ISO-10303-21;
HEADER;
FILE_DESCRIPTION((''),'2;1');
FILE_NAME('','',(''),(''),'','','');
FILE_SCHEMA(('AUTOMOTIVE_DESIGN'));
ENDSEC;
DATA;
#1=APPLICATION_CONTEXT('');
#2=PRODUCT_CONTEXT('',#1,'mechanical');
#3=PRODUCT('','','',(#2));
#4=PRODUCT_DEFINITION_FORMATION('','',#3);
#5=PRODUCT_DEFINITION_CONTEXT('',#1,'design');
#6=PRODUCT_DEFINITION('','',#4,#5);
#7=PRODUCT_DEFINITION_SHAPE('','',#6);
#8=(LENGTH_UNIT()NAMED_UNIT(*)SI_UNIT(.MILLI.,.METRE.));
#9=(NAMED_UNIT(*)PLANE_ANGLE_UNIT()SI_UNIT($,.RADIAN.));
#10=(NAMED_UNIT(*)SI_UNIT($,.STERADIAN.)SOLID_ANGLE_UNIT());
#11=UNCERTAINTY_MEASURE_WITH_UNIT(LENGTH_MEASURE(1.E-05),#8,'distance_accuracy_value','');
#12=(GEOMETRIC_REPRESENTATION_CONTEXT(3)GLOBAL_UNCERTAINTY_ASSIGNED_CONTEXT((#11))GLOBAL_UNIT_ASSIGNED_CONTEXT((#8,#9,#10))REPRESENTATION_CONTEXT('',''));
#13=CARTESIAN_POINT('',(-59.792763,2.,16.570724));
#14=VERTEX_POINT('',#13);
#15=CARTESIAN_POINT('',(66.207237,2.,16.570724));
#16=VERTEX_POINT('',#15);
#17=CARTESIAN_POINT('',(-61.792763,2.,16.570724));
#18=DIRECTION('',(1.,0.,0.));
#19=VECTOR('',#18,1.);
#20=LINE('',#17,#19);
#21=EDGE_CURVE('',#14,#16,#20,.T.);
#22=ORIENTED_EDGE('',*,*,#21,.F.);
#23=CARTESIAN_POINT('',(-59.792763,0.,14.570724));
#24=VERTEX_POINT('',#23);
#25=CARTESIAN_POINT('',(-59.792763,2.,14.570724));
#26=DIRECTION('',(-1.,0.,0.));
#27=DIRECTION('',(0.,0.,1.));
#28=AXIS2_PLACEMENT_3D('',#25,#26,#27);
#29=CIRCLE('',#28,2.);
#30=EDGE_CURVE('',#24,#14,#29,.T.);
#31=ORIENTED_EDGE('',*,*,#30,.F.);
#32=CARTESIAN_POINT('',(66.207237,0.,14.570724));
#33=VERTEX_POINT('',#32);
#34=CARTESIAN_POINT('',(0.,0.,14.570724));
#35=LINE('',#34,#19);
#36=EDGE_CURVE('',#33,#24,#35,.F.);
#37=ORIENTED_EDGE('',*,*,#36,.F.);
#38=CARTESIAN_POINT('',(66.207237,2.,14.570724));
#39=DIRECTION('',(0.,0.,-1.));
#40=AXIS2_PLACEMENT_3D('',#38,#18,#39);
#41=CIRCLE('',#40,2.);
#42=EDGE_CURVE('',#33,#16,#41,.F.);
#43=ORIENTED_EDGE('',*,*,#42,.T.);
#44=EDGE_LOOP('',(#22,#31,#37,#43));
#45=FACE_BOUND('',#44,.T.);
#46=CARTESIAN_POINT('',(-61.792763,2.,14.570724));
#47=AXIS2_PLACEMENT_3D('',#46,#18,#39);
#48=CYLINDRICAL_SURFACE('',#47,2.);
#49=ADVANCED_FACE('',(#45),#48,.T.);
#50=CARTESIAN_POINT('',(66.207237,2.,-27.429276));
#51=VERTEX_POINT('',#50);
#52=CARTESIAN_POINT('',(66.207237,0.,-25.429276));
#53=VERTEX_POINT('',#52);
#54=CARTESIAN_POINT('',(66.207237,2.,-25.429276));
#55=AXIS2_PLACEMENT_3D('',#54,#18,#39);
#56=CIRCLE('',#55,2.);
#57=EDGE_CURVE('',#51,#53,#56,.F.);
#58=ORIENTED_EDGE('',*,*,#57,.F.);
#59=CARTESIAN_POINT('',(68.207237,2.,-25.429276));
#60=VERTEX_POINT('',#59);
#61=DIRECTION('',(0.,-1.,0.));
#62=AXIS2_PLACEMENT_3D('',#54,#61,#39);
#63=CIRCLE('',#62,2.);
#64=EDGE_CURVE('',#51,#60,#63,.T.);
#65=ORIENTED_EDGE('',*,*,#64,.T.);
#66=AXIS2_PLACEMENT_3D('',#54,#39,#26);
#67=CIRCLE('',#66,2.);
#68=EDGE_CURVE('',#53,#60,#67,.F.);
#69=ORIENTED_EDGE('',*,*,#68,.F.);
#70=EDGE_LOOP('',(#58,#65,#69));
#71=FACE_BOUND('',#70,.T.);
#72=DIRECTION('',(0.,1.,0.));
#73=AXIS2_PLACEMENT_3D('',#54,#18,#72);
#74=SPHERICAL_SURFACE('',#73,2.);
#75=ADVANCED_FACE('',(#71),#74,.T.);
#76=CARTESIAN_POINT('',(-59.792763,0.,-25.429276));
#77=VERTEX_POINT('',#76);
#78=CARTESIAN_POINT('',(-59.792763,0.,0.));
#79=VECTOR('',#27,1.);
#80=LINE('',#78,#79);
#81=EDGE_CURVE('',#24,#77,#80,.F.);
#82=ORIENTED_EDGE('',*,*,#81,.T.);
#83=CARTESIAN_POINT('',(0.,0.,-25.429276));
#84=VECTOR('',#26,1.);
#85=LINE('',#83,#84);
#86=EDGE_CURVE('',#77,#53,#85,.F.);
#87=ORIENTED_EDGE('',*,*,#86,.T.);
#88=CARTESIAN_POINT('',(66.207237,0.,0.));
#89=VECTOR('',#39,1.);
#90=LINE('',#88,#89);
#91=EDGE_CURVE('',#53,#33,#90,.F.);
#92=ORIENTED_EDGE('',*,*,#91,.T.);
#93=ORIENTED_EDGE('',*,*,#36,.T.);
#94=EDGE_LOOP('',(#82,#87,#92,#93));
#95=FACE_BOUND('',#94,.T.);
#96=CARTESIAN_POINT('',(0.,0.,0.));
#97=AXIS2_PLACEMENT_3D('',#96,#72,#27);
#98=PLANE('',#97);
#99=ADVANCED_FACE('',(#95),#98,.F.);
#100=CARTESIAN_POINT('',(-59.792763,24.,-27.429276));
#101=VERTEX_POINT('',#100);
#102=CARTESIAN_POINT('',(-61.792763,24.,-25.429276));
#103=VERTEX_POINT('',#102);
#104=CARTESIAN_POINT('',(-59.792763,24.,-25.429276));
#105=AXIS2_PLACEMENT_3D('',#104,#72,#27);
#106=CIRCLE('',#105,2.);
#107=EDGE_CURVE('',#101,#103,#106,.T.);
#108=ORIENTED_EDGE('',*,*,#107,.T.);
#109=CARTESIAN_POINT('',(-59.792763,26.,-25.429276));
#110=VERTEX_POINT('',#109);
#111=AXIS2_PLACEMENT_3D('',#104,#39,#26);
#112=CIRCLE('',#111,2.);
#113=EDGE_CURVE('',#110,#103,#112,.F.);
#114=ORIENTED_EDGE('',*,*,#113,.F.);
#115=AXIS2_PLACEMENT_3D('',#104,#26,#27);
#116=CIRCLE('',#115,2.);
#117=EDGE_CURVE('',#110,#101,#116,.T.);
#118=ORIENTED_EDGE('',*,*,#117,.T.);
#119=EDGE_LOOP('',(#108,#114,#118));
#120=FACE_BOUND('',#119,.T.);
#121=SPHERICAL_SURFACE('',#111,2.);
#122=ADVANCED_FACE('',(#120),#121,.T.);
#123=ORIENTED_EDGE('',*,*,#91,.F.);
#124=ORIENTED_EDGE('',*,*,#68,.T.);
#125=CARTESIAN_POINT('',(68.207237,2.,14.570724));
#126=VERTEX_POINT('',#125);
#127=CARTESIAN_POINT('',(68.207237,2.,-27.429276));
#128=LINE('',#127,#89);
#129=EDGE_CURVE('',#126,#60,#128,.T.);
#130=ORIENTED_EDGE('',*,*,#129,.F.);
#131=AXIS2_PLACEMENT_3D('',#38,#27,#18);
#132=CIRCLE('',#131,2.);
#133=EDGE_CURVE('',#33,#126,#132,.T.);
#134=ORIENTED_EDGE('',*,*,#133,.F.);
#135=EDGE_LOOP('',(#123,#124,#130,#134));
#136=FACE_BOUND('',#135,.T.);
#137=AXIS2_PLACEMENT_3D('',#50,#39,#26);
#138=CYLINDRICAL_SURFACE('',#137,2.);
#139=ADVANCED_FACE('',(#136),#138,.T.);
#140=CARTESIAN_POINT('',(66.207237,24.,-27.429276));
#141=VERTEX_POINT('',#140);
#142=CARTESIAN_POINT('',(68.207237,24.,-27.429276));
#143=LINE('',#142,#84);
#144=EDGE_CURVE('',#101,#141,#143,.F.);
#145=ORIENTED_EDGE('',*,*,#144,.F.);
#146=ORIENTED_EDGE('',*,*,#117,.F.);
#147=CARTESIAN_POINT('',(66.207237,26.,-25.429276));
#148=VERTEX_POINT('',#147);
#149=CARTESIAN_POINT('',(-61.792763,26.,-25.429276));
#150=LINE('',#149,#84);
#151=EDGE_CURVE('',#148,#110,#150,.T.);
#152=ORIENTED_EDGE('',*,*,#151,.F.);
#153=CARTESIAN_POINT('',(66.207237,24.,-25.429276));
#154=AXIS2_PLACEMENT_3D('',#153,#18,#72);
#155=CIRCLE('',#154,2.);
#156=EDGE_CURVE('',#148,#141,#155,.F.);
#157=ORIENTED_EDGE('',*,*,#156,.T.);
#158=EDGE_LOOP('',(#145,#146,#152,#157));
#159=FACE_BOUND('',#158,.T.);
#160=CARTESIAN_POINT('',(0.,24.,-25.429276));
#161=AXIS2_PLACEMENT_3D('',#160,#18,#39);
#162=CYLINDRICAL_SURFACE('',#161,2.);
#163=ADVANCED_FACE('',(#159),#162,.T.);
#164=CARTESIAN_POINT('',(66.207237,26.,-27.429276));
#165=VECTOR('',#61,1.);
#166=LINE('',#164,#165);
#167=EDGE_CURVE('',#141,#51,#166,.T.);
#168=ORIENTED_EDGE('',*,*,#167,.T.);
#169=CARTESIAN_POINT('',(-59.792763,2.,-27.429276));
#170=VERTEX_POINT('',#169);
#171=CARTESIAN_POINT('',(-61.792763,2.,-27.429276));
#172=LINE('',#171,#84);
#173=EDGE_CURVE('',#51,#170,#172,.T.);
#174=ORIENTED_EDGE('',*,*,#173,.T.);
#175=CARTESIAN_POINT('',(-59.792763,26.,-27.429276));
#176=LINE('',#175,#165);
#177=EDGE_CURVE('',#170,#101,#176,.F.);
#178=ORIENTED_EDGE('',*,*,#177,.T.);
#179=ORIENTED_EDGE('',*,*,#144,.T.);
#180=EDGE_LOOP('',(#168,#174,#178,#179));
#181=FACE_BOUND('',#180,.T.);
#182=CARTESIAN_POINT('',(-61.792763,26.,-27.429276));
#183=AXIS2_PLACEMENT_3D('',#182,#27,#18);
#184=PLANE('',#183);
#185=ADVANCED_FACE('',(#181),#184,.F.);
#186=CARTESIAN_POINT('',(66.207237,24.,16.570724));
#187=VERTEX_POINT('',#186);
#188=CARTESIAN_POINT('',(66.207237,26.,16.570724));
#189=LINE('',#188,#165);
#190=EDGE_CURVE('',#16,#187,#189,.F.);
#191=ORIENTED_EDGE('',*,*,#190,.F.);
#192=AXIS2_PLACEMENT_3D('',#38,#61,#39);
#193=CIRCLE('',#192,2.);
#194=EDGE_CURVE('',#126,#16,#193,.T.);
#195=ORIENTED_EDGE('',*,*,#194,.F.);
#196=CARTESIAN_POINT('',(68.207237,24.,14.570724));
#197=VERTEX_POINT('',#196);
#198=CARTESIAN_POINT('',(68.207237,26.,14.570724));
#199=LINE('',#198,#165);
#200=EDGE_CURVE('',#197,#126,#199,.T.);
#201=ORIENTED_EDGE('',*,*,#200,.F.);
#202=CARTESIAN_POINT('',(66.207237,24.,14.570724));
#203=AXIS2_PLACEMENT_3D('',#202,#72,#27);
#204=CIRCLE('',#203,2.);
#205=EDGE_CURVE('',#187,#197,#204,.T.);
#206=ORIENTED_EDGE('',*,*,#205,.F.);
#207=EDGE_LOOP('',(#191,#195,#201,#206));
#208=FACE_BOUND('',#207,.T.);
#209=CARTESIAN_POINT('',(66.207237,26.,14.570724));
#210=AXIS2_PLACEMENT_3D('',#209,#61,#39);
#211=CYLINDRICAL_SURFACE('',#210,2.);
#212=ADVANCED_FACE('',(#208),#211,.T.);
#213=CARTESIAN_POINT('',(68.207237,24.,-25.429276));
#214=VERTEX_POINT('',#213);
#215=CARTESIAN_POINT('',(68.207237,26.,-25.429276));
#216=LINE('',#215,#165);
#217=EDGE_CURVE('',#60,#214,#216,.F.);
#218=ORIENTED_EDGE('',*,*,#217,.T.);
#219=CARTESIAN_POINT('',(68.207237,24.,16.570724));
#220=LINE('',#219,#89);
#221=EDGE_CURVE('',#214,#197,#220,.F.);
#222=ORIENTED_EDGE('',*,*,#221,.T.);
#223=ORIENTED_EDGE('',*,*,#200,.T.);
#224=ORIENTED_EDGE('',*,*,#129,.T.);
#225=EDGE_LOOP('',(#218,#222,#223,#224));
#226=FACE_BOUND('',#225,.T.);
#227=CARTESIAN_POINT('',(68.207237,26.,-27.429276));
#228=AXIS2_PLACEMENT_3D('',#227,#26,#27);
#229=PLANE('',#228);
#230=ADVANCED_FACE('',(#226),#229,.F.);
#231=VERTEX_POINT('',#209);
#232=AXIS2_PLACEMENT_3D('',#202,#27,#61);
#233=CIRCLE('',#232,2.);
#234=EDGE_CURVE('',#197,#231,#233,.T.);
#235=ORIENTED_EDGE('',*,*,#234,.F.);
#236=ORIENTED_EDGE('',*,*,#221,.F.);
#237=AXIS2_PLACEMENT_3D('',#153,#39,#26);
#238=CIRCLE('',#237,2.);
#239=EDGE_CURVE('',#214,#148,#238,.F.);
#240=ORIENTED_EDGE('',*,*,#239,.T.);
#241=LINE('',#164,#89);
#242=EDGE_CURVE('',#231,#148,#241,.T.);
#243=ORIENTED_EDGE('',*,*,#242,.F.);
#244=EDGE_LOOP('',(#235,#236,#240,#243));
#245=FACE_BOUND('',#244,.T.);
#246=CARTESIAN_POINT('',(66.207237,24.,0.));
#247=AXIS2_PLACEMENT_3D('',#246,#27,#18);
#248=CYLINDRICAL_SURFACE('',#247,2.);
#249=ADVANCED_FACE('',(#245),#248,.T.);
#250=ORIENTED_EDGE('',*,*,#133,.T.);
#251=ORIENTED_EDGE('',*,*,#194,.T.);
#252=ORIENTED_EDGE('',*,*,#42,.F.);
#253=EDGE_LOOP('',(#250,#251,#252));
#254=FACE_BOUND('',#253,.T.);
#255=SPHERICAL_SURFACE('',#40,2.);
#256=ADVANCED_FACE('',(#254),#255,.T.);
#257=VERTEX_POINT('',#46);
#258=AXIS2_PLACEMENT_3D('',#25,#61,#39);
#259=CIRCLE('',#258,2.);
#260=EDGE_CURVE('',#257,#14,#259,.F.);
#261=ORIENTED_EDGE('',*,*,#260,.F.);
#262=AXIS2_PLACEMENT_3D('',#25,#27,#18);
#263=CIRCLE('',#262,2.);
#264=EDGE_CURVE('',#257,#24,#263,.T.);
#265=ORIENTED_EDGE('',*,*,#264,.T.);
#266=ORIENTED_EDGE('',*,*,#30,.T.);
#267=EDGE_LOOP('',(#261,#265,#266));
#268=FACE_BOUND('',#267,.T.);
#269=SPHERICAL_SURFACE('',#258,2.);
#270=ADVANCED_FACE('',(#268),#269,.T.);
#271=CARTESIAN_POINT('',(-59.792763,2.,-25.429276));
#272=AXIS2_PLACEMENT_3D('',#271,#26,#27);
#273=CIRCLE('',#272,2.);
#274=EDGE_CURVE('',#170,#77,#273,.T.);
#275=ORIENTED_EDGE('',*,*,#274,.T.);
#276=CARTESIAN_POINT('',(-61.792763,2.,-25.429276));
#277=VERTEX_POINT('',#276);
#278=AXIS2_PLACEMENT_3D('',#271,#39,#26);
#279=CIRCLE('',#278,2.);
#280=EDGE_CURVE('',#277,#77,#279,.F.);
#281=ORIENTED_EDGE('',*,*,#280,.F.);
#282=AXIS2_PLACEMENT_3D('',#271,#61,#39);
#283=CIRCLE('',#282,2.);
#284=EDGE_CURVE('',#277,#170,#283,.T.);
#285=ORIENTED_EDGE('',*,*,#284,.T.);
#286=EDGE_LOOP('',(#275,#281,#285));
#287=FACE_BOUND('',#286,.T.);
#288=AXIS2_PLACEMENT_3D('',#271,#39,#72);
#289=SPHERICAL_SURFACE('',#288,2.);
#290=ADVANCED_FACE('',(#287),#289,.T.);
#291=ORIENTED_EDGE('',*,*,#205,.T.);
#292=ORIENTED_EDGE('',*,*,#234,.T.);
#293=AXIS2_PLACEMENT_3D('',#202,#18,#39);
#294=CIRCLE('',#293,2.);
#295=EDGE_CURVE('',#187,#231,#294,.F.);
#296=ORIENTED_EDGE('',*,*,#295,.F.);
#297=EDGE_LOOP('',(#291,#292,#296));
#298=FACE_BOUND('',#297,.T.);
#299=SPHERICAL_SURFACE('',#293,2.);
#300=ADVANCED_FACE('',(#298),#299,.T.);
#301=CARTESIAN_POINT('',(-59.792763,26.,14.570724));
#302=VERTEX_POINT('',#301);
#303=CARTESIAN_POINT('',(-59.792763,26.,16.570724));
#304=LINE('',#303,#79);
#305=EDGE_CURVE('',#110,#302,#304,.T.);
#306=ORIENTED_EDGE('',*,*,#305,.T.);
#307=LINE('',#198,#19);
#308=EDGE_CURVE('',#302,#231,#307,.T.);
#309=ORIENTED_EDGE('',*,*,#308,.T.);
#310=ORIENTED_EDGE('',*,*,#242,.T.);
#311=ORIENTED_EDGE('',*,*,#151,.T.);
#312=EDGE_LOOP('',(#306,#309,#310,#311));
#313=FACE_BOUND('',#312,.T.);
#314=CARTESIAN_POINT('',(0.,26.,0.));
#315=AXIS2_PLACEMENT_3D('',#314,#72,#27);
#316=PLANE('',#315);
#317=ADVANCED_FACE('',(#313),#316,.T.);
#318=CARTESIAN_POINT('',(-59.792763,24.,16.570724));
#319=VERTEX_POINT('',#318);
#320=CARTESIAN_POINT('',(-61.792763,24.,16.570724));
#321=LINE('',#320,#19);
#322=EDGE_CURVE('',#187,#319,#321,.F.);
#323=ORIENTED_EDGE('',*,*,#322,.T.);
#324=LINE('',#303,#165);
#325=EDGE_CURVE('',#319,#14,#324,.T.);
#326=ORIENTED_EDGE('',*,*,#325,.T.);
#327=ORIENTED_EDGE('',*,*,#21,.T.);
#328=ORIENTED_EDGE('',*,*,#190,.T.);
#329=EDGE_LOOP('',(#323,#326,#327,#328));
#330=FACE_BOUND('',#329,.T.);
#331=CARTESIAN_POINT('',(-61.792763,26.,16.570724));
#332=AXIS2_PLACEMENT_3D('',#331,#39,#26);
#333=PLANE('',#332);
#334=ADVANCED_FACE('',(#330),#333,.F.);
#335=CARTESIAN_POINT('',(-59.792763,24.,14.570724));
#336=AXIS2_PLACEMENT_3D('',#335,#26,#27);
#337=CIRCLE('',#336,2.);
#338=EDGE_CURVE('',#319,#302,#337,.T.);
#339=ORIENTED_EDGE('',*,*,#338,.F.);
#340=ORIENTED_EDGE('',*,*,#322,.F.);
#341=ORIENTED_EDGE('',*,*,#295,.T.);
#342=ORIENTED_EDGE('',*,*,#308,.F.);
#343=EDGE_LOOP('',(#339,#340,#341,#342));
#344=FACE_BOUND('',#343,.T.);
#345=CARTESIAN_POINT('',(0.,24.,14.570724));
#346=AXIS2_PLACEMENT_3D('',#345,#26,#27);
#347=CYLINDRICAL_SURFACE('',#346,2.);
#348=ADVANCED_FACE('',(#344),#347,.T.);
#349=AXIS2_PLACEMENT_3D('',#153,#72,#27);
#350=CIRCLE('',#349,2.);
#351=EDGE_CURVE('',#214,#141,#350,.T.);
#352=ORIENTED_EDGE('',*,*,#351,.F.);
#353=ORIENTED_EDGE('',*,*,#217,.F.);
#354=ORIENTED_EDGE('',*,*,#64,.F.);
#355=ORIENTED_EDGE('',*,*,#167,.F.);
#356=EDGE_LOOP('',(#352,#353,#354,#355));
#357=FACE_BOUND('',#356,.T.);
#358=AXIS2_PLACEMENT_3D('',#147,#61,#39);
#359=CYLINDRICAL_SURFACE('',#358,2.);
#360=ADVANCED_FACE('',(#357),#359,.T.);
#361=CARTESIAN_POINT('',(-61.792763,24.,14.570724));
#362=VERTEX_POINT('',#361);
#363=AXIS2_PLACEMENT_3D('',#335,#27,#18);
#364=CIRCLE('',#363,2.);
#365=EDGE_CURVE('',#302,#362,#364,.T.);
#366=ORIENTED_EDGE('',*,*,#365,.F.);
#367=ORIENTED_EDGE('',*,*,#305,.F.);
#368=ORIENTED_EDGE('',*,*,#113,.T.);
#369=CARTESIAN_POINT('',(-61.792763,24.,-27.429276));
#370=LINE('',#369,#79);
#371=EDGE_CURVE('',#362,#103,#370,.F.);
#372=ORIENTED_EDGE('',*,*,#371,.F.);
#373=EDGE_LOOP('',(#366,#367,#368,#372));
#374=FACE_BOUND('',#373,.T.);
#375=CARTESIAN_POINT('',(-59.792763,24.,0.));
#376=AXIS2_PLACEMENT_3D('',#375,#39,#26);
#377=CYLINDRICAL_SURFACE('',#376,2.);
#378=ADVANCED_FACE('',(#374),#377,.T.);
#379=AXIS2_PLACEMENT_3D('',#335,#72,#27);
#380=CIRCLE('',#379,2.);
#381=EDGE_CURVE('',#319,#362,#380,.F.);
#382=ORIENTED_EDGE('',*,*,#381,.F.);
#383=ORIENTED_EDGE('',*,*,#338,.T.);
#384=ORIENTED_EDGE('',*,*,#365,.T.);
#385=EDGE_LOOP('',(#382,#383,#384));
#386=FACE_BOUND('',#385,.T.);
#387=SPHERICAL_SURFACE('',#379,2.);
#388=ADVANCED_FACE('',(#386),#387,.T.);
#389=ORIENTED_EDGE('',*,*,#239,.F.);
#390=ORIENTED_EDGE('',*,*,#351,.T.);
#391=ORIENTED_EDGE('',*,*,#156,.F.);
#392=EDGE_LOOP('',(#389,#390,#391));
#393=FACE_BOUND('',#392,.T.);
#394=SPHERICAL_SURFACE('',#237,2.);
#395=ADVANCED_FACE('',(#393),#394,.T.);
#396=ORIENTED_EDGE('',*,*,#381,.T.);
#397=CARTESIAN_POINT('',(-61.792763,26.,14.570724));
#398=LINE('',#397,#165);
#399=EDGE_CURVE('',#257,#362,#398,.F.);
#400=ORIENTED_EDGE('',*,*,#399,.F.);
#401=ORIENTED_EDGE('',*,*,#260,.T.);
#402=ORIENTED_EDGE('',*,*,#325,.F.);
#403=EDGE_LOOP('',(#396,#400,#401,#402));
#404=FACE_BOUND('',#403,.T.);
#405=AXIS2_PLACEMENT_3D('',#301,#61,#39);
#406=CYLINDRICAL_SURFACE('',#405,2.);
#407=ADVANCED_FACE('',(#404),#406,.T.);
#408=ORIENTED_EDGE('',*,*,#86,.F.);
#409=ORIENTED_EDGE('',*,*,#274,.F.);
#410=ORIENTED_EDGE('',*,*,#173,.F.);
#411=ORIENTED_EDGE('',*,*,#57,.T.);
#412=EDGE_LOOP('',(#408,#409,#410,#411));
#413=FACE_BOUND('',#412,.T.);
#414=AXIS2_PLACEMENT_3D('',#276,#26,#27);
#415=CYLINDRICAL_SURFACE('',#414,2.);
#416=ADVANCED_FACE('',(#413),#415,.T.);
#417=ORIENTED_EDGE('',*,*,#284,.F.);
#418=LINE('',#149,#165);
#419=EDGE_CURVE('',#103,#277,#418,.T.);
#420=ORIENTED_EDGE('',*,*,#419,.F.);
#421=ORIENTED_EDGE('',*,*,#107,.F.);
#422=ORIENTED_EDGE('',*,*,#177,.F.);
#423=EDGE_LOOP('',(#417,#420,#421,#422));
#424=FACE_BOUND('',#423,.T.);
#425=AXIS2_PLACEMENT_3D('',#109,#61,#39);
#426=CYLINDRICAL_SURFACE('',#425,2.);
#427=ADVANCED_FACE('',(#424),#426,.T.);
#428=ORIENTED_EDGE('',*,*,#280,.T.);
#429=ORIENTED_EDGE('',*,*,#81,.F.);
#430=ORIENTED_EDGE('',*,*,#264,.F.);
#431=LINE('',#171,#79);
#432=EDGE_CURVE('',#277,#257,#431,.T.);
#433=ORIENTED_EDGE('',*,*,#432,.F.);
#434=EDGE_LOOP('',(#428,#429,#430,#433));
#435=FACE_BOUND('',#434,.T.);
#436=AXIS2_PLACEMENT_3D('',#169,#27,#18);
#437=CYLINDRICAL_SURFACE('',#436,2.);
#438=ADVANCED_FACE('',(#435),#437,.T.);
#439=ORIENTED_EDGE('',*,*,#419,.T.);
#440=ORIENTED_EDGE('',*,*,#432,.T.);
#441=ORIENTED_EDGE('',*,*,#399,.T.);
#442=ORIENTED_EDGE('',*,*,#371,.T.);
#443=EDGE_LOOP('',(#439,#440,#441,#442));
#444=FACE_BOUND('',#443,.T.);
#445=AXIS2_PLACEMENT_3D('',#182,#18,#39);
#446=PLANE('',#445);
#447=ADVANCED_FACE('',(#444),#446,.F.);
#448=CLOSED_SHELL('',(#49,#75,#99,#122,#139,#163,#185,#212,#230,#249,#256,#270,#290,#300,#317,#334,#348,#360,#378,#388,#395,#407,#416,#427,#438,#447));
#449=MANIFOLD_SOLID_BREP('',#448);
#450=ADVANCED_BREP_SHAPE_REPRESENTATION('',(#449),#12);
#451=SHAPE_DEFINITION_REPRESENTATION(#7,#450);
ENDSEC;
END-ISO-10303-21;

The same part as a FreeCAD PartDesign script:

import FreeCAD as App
import Part
import Sketcher
Q = App.Units.Quantity


def add_polygon(sketch, points):
    """Adds a closed chain of lines whose ends are joined by coincident constraints."""
    first, n = sketch.GeometryCount, len(points)
    for a, b in zip(points, points[1:] + points[:1]):
        sketch.addGeometry(Part.LineSegment(App.Vector(*a, 0), App.Vector(*b, 0)), False)
    for i in range(n):
        sketch.addConstraint(Sketcher.Constraint("Coincident", first + i, 2, first + (i + 1) % n, 1))

doc = App.newDocument("Part")
params = doc.addObject("Spreadsheet::Sheet", "Params")
for row, (alias, value) in enumerate([
    ("sketch1_width", "130 mm"),
    ("sketch1_height", "44 mm"),
    ("pad1_length", "26 mm"),
    ("fillet_radius", "2 mm"),
], start=1):
    params.set(f"A{row}", alias)
    params.set(f"B{row}", "=" + value)
    params.setAlias(f"B{row}", alias)

body = doc.addObject("PartDesign::Body", "Body")

sketch1 = body.newObject("Sketcher::SketchObject", "Sketch")
sketch1.AttachmentSupport = (doc.getObject("XZ_Plane"), [""])
sketch1.MapMode = "FlatFace"
add_polygon(sketch1, [(-61.792763, -27.429276), (-61.792763, 16.570724), (68.207237, 16.570724), (68.207237, -27.429276)])
sketch1.addConstraint([
    Sketcher.Constraint("Vertical", 0),
    Sketcher.Constraint("Horizontal", 1),
    Sketcher.Constraint("Vertical", 2),
    Sketcher.Constraint("Horizontal", 3),
    Sketcher.Constraint("DistanceX", 1, 1, 1, 2, Q("130 mm")),
    Sketcher.Constraint("DistanceY", 0, 1, 0, 2, Q("44 mm")),
    Sketcher.Constraint("DistanceX", 0, 2, -1, 1, Q("61.792763 mm")),
    Sketcher.Constraint("DistanceY", -1, 1, 0, 2, Q("16.570724 mm")),
])
sketch1.setExpression("Constraints[8]", "Params.sketch1_width")
sketch1.setExpression("Constraints[9]", "Params.sketch1_height")
pad1 = body.newObject("PartDesign::Pad", "Pad")
pad1.Profile = sketch1
pad1.setExpression("Length", "Params.pad1_length")
pad1.Reversed = True
doc.recompute()

fillet = body.newObject("PartDesign::Fillet", "Fillet")
fillet.Base = (pad1, ["Edge1"])
fillet.UseAllEdges = True
fillet.setExpression("Radius", "Params.fillet_radius")

doc.recompute()
